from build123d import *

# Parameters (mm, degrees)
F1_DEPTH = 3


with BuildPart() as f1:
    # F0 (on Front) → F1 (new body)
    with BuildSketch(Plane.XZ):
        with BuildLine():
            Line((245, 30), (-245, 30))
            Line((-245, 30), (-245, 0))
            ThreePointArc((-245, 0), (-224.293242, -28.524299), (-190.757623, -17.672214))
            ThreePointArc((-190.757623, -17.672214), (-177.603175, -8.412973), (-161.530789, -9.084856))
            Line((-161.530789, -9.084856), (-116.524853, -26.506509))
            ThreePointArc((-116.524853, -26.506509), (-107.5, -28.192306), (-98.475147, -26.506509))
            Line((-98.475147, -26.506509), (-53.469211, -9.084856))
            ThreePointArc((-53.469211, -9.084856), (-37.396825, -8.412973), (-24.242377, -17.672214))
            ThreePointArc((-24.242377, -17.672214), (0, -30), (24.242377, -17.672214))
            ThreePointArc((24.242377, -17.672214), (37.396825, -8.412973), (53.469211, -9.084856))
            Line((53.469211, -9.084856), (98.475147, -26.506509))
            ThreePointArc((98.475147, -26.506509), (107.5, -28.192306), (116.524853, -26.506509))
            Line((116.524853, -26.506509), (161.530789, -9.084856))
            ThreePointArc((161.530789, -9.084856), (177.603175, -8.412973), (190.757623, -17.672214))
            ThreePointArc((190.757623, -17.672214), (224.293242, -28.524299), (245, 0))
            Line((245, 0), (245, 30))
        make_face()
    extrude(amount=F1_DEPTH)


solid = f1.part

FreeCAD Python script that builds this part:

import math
import FreeCAD as App
import Part
import Sketcher
from FreeCAD import Vector

doc = App.newDocument("Part")
body = doc.addObject("PartDesign::Body", "Body")

# Sketch on XZ plane
sketch1 = body.newObject("Sketcher::SketchObject", "Sketch")
sketch1.AttachmentSupport = (doc.getObject("XZ_Plane"), [""])
sketch1.MapMode = "FlatFace"
sketch1.addGeometry(Part.LineSegment(Vector(245, 30, 0), Vector(-245, 30, 0)), False)
sketch1.addGeometry(Part.LineSegment(Vector(-245, 30, 0), Vector(-245, 0, 0)), False)
sketch1.addGeometry(Part.ArcOfCircle(Part.Circle(Vector(-215, 0, 0), Vector(0, 0, 1), 30), math.radians(-179.999999), math.radians(-36.091311)), False)
sketch1.addGeometry(Part.ArcOfCircle(Part.Circle(Vector(-170.555642, -32.399056, 0), Vector(0, 0, 1), 24.999998), math.radians(68.838737), math.radians(143.908695)), False)
sketch1.addGeometry(Part.LineSegment(Vector(-161.530789, -9.084856, 0), Vector(-116.524853, -26.506509, 0)), False)
sketch1.addGeometry(Part.ArcOfCircle(Part.Circle(Vector(-107.5, -3.192296, 0), Vector(0, 0, 1), 25.00001), math.radians(-111.161252), math.radians(-68.838748)), False)
sketch1.addGeometry(Part.LineSegment(Vector(-98.475147, -26.506509, 0), Vector(-53.469211, -9.084856, 0)), False)
sketch1.addGeometry(Part.ArcOfCircle(Part.Circle(Vector(-44.444358, -32.399056, 0), Vector(0, 0, 1), 24.999998), math.radians(36.091305), math.radians(111.161263)), False)
sketch1.addGeometry(Part.ArcOfCircle(Part.Circle(Vector(0, 0, 0), Vector(0, 0, 1), 30), math.radians(-143.908691), math.radians(-36.091309)), False)
sketch1.addGeometry(Part.ArcOfCircle(Part.Circle(Vector(44.444358, -32.399056, 0), Vector(0, 0, 1), 24.999998), math.radians(68.838737), math.radians(143.908695)), False)
sketch1.addGeometry(Part.LineSegment(Vector(53.469211, -9.084856, 0), Vector(98.475147, -26.506509, 0)), False)
sketch1.addGeometry(Part.ArcOfCircle(Part.Circle(Vector(107.5, -3.192296, 0), Vector(0, 0, 1), 25.00001), math.radians(-111.161252), math.radians(-68.838748)), False)
sketch1.addGeometry(Part.LineSegment(Vector(116.524853, -26.506509, 0), Vector(161.530789, -9.084856, 0)), False)
sketch1.addGeometry(Part.ArcOfCircle(Part.Circle(Vector(170.555642, -32.399056, 0), Vector(0, 0, 1), 24.999998), math.radians(36.091305), math.radians(111.161263)), False)
sketch1.addGeometry(Part.ArcOfCircle(Part.Circle(Vector(215, 0, 0), Vector(0, 0, 1), 30), math.radians(-143.908689), math.radians(-0.000001)), False)
sketch1.addGeometry(Part.LineSegment(Vector(245, 0, 0), Vector(245, 30, 0)), False)
sketch1.addConstraint(Sketcher.Constraint("Coincident", 0, 2, 1, 1))
sketch1.addConstraint(Sketcher.Constraint("Tangent", 1, 2, 2, 1))
sketch1.addConstraint(Sketcher.Constraint("Tangent", 2, 2, 3, 2))
sketch1.addConstraint(Sketcher.Constraint("Tangent", 3, 1, 4, 1))
sketch1.addConstraint(Sketcher.Constraint("Tangent", 4, 2, 5, 1))
sketch1.addConstraint(Sketcher.Constraint("Tangent", 5, 2, 6, 1))
sketch1.addConstraint(Sketcher.Constraint("Tangent", 6, 2, 7, 2))
sketch1.addConstraint(Sketcher.Constraint("Tangent", 7, 1, 8, 1))
sketch1.addConstraint(Sketcher.Constraint("Tangent", 8, 2, 9, 2))
sketch1.addConstraint(Sketcher.Constraint("Tangent", 9, 1, 10, 1))
sketch1.addConstraint(Sketcher.Constraint("Tangent", 10, 2, 11, 1))
sketch1.addConstraint(Sketcher.Constraint("Tangent", 11, 2, 12, 1))
sketch1.addConstraint(Sketcher.Constraint("Tangent", 12, 2, 13, 2))
sketch1.addConstraint(Sketcher.Constraint("Tangent", 13, 1, 14, 1))
sketch1.addConstraint(Sketcher.Constraint("Tangent", 14, 2, 15, 1))
sketch1.addConstraint(Sketcher.Constraint("Coincident", 15, 2, 0, 1))
sketch1.addConstraint(Sketcher.Constraint("Horizontal", 0))
sketch1.addConstraint(Sketcher.Constraint("Vertical", 1))
sketch1.addConstraint(Sketcher.Constraint("Vertical", 15))
sketch1.addConstraint(Sketcher.Constraint("Coincident", 8, 3, -1, 1))
sketch1.addConstraint(Sketcher.Constraint("Equal", 3, 7))
sketch1.addConstraint(Sketcher.Constraint("Equal", 2, 8))
sketch1.addConstraint(Sketcher.Constraint("Equal", 7, 9))
sketch1.addConstraint(Sketcher.Constraint("Equal", 5, 11))
sketch1.addConstraint(Sketcher.Constraint("Equal", 9, 13))
sketch1.addConstraint(Sketcher.Constraint("Equal", 8, 14))
sketch1.addConstraint(Sketcher.Constraint("Symmetric", 2, 3, 14, 3, -1, 1))
sketch1.addConstraint(Sketcher.Constraint("Symmetric", 5, 3, 11, 3, -2))
sketch1.addConstraint(Sketcher.Constraint("Symmetric", 3, 3, 13, 3, -2))
sketch1.addConstraint(Sketcher.Constraint("Parallel", 4, 10))
sketch1.addConstraint(Sketcher.Constraint("Parallel", 6, 12))
sketch1.addConstraint(Sketcher.Constraint("Horizontal", 3, 3, 7, 3))
sketch1.addConstraint(Sketcher.Constraint("Radius", 2, 30.0))
sketch1.addConstraint(Sketcher.Constraint("Radius", 3, 24.999998))
sketch1.addConstraint(Sketcher.Constraint("DistanceX", 0, 2, 0, 1, 490.0))
sketch1.addConstraint(Sketcher.Constraint("DistanceY", 1, 2, 1, 1, 30.0))
sketch1.addConstraint(Sketcher.Constraint("Radius", 5, 25.00001))
sketch1.addConstraint(Sketcher.Constraint("DistanceY", 3, 3, 3, 1, 23.3142))
sketch1.addConstraint(Sketcher.Constraint("DistanceX", 3, 1, -1, 1, 161.530789))
pad1 = body.newObject("PartDesign::Pad", "Pad")
pad1.Profile = sketch1
pad1.Length = 3

doc.recompute()
